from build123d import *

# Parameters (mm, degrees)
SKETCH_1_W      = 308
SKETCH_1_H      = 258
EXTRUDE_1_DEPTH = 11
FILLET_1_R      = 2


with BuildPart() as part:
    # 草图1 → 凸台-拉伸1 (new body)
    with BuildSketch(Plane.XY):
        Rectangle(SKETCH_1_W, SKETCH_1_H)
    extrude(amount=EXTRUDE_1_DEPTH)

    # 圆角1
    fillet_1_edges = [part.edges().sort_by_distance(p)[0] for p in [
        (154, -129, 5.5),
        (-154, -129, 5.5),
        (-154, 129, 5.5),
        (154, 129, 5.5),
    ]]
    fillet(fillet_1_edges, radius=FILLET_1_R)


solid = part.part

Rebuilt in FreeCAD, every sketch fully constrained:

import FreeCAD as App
import Part
import Sketcher
from FreeCAD import Vector


def edges_at(feature, points):
    """Names of the edges that pass closest to the given points."""
    edges = feature.Shape.Edges
    near = lambda p: min(range(len(edges)), key=lambda i: edges[i].distToShape(Part.Vertex(*p))[0])
    return sorted({f"Edge{near(p) + 1}" for p in points})


def add_polygon(sketch, points):
    """Adds a closed chain of lines whose ends are joined by coincident constraints."""
    first, n = sketch.GeometryCount, len(points)
    for a, b in zip(points, points[1:] + points[:1]):
        sketch.addGeometry(Part.LineSegment(App.Vector(*a, 0), App.Vector(*b, 0)), False)
    for i in range(n):
        sketch.addConstraint(Sketcher.Constraint("Coincident", first + i, 2, first + (i + 1) % n, 1))

doc = App.newDocument("Part")
body = doc.addObject("PartDesign::Body", "Body")

# Sketch on XY plane
sketch1 = body.newObject("Sketcher::SketchObject", "Sketch")
sketch1.AttachmentSupport = (doc.getObject("XY_Plane"), [""])
sketch1.MapMode = "FlatFace"
add_polygon(sketch1, [(-154, 129), (-154, -129), (154, -129), (154, 129)])  # lines 0-3
sketch1.addConstraint(Sketcher.Constraint("Vertical", 0))
sketch1.addConstraint(Sketcher.Constraint("Horizontal", 1))
sketch1.addConstraint(Sketcher.Constraint("Vertical", 2))
sketch1.addConstraint(Sketcher.Constraint("Horizontal", 3))
sketch1.addConstraint(Sketcher.Constraint("Symmetric", 0, 2, 2, 2, -1, 1))
sketch1.addConstraint(Sketcher.Constraint("DistanceX", 1, 1, 1, 2, 308.0))
sketch1.addConstraint(Sketcher.Constraint("DistanceY", 0, 2, 0, 1, 258.0))
pad1 = body.newObject("PartDesign::Pad", "Pad")
pad1.Profile = sketch1
pad1.Length = 11
doc.recompute()

fillet = body.newObject("PartDesign::Fillet", "Fillet")
fillet.Base = (pad1, edges_at(pad1, [
    (154, -129, 5.5),
    (-154, -129, 5.5),
    (-154, 129, 5.5),
    (154, 129, 5.5),
]))
fillet.Radius = 2

doc.recompute()
